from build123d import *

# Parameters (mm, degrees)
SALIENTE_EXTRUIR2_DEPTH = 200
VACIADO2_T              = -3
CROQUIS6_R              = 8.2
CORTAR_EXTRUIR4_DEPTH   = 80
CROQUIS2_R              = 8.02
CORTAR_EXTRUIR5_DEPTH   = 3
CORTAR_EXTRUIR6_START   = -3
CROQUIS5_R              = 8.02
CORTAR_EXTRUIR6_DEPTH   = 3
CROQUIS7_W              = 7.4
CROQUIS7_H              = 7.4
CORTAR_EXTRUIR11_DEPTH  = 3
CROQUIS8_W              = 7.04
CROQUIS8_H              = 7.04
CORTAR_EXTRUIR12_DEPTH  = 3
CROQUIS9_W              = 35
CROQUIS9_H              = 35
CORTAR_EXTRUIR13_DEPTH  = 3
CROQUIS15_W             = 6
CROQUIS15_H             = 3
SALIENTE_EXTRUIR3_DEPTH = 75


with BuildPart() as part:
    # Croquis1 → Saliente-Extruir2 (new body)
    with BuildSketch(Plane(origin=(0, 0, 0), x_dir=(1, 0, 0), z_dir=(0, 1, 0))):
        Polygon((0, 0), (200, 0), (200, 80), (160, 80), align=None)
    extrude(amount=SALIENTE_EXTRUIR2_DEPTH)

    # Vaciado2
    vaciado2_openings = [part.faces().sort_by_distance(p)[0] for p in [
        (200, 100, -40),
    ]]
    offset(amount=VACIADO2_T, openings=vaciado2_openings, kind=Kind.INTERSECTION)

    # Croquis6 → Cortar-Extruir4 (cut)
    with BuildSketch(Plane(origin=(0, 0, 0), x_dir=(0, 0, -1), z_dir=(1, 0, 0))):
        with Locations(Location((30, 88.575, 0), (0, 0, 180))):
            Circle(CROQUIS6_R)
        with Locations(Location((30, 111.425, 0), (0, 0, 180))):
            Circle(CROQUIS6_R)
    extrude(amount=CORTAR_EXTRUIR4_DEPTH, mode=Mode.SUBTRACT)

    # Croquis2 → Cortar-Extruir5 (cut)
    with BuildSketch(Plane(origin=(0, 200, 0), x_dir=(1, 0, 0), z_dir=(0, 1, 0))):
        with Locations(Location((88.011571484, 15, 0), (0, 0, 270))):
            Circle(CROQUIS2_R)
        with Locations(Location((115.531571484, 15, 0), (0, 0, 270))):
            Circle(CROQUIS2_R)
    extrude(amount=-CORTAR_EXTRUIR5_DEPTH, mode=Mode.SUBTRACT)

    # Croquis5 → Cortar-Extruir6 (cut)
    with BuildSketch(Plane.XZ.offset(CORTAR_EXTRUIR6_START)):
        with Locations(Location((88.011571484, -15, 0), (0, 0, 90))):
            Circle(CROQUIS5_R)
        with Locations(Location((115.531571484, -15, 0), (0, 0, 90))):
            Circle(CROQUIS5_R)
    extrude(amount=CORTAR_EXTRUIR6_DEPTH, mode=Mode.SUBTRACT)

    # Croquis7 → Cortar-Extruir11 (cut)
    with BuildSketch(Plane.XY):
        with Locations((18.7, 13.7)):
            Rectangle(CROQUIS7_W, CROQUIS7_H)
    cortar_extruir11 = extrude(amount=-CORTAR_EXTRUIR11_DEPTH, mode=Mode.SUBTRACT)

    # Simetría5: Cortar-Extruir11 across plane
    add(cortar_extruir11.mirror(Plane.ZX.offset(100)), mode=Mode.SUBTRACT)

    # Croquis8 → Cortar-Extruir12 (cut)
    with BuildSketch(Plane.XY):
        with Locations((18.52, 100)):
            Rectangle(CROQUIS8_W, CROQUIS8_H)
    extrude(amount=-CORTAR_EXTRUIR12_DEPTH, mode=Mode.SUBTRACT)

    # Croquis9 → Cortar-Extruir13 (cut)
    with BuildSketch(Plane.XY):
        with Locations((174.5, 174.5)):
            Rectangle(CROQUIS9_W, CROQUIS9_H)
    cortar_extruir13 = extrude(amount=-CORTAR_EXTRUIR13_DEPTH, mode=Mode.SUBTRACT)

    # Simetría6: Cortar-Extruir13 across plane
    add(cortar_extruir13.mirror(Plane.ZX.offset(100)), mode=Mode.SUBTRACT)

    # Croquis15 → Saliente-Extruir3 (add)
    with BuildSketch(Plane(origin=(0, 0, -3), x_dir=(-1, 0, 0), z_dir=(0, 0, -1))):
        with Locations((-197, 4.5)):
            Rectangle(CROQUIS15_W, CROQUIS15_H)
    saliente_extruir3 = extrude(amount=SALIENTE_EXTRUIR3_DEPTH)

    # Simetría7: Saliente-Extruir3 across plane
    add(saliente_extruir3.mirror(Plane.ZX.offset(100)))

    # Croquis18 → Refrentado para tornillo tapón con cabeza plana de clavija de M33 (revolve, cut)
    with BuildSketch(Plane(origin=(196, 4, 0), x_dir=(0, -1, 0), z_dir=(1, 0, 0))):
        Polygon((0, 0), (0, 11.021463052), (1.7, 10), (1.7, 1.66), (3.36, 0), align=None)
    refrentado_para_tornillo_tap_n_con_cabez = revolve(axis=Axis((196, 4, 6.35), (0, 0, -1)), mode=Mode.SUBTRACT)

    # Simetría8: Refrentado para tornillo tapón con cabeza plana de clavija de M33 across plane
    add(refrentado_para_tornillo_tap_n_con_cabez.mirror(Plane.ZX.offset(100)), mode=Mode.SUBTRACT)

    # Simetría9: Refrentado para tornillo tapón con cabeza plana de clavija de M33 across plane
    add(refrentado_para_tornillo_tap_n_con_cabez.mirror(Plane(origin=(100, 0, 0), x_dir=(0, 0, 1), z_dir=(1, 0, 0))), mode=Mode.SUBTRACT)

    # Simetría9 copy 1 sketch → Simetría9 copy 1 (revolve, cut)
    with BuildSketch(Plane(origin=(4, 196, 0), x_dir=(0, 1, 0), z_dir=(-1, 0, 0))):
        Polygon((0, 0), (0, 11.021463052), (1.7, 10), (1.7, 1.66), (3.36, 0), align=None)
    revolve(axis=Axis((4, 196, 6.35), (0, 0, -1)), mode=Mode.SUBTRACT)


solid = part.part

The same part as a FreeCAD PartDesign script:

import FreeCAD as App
import Part
import Sketcher

V = App.Vector
Q = App.Units.Quantity


def faces_at(feature, points):
    """Names of the faces that lie closest to the given points."""
    faces = feature.Shape.Faces
    near = lambda p: min(range(len(faces)), key=lambda i: faces[i].distToShape(Part.Vertex(*p))[0])
    return sorted({f"Face{near(p) + 1}" for p in points})


def add_polygon(sketch, points):
    """Adds a closed chain of lines whose ends are joined by coincident constraints."""
    first, n = sketch.GeometryCount, len(points)
    for a, b in zip(points, points[1:] + points[:1]):
        sketch.addGeometry(Part.LineSegment(App.Vector(*a, 0), App.Vector(*b, 0)), False)
    for i in range(n):
        sketch.addConstraint(Sketcher.Constraint("Coincident", first + i, 2, first + (i + 1) % n, 1))

doc = App.newDocument("Part")
body = doc.addObject("PartDesign::Body", "Body")

sketch1 = body.newObject("Sketcher::SketchObject", "Sketch")
sketch1.AttachmentSupport = (doc.getObject("XZ_Plane"), [""])
sketch1.MapMode = "FlatFace"
add_polygon(sketch1, [(0, 0), (200, 0), (200, -80), (160, -80)])
sketch1.addConstraint([
    Sketcher.Constraint("Horizontal", 0),
    Sketcher.Constraint("Vertical", 1),
    Sketcher.Constraint("Horizontal", 2),
    Sketcher.Constraint("Coincident", 3, 2, -1, 1),
    Sketcher.Constraint("DistanceX", 0, 1, 0, 2, 200.0),
    Sketcher.Constraint("DistanceX", 2, 2, 2, 1, 40.0),
    Sketcher.Constraint("DistanceY", 1, 2, 1, 1, 80.0),
])
pad1 = body.newObject("PartDesign::Pad", "Pad")
pad1.Profile = sketch1
pad1.Length = 200
pad1.Reversed = True
doc.recompute()

thickness = body.newObject("PartDesign::Thickness", "Thickness")
thickness.Base = (pad1, faces_at(pad1, [(200, 100, -40)]))
thickness.Value = 3
thickness.Reversed = True
thickness.Join = "Intersection"

sketch2 = body.newObject("Sketcher::SketchObject", "Sketch001")
sketch2.AttachmentSupport = (doc.getObject("YZ_Plane"), [""])
sketch2.MapMode = "FlatFace"
sketch2.addGeometry([
    Part.Circle(V(89, -30, 0), V(0, 0, 1), 8),
    Part.Circle(V(111, -30, 0), V(0, 0, 1), 8),
], False)
sketch2.addConstraint([
    Sketcher.Constraint("Equal", 0, 1),
    Sketcher.Constraint("Horizontal", 0, 3, 1, 3),
    Sketcher.Constraint("Diameter", 0, 16.4),
    Sketcher.Constraint("DistanceY", 0, 3, -1, 1, 30.0),
    Sketcher.Constraint("DistanceX", 0, 3, 1, 3, 22.85),
    Sketcher.Constraint("DistanceX", -1, 1, 0, 3, 88.575),
])
pocket1 = body.newObject("PartDesign::Pocket", "Pocket")
pocket1.Profile = sketch2
pocket1.Length = 80
pocket1.Reversed = True

sketch3 = body.newObject("Sketcher::SketchObject", "Sketch002")
sketch3.AttachmentSupport = (doc.getObject("XZ_Plane"), [""])
sketch3.MapMode = "FlatFace"
sketch3.AttachmentOffset = App.Placement(V(0, 0, -200), App.Rotation())
sketch3.addGeometry([
    Part.Circle(V(88, -15, 0), V(0, 0, 1), 8),
    Part.Circle(V(116, -15, 0), V(0, 0, 1), 8),
], False)
sketch3.addConstraint([
    Sketcher.Constraint("Equal", 0, 1),
    Sketcher.Constraint("Horizontal", 0, 3, 1, 3),
    Sketcher.Constraint("Diameter", 0, 16.04),
    Sketcher.Constraint("DistanceY", 0, 3, -1, 1, 15.0),
    Sketcher.Constraint("DistanceX", 0, 3, 1, 3, 27.52),
    Sketcher.Constraint("DistanceX", -1, 1, 0, 3, 88.011571),
])
pocket2 = body.newObject("PartDesign::Pocket", "Pocket001")
pocket2.Profile = sketch3
pocket2.Length = 3
pocket2.Reversed = True

sketch4 = body.newObject("Sketcher::SketchObject", "Sketch003")
sketch4.AttachmentSupport = (doc.getObject("XZ_Plane"), [""])
sketch4.MapMode = "FlatFace"
sketch4.AttachmentOffset = App.Placement(V(0, 0, -3), App.Rotation())
sketch4.addGeometry([
    Part.Circle(V(88, -15, 0), V(0, 0, 1), 8),
    Part.Circle(V(116, -15, 0), V(0, 0, 1), 8),
], False)
sketch4.addConstraint([
    Sketcher.Constraint("Equal", 0, 1),
    Sketcher.Constraint("Horizontal", 0, 3, 1, 3),
    Sketcher.Constraint("Diameter", 0, 16.04),
    Sketcher.Constraint("DistanceY", 0, 3, -1, 1, 15.0),
    Sketcher.Constraint("DistanceX", 0, 3, 1, 3, 27.52),
    Sketcher.Constraint("DistanceX", -1, 1, 0, 3, 88.011571),
])
pocket3 = body.newObject("PartDesign::Pocket", "Pocket002")
pocket3.Profile = sketch4
pocket3.Length = 3
pocket3.Reversed = True

sketch5 = body.newObject("Sketcher::SketchObject", "Sketch004")
sketch5.AttachmentSupport = (doc.getObject("XY_Plane"), [""])
sketch5.MapMode = "FlatFace"
add_polygon(sketch5, [(15, 17), (15, 10), (22, 10), (22, 17)])
sketch5.addConstraint([
    Sketcher.Constraint("Vertical", 0),
    Sketcher.Constraint("Horizontal", 1),
    Sketcher.Constraint("Vertical", 2),
    Sketcher.Constraint("Horizontal", 3),
    Sketcher.Constraint("Equal", 3, 0),
    Sketcher.Constraint("DistanceX", 1, 1, 1, 2, 7.4),
    Sketcher.Constraint("DistanceX", -1, 1, 0, 2, 15.0),
    Sketcher.Constraint("DistanceY", -1, 1, 0, 2, 10.0),
])
pocket4 = body.newObject("PartDesign::Pocket", "Pocket003")
pocket4.Profile = sketch5
pocket4.Length = 3
doc.recompute()

datumplane = body.newObject("PartDesign::Plane", "DatumPlane")
datumplane.AttachmentSupport = (doc.getObject("XZ_Plane"), [""])
datumplane.MapMode = "FlatFace"
datumplane.AttachmentOffset = App.Placement(V(0, 0, -100), App.Rotation())
mirrored = body.newObject("PartDesign::Mirrored", "Mirrored")
mirrored.Originals = [pocket4]
mirrored.MirrorPlane = (datumplane, [""])
body.Tip = mirrored

sketch6 = body.newObject("Sketcher::SketchObject", "Sketch005")
sketch6.AttachmentSupport = (doc.getObject("XY_Plane"), [""])
sketch6.MapMode = "FlatFace"
add_polygon(sketch6, [(15, 104), (15, 96), (22, 96), (22, 104)])
sketch6.addConstraint([
    Sketcher.Constraint("Vertical", 0),
    Sketcher.Constraint("Horizontal", 1),
    Sketcher.Constraint("Vertical", 2),
    Sketcher.Constraint("Horizontal", 3),
    Sketcher.Constraint("Equal", 3, 0),
    Sketcher.Constraint("DistanceX", -1, 1, 0, 2, 15.0),
    Sketcher.Constraint("DistanceX", 1, 1, 1, 2, 7.04),
    Sketcher.Constraint("DistanceY", -1, 1, 0, 2, 96.48),
])
pocket5 = body.newObject("PartDesign::Pocket", "Pocket004")
pocket5.Profile = sketch6
pocket5.Length = 3

sketch7 = body.newObject("Sketcher::SketchObject", "Sketch006")
sketch7.AttachmentSupport = (doc.getObject("XY_Plane"), [""])
sketch7.MapMode = "FlatFace"
add_polygon(sketch7, [(157, 192), (157, 157), (192, 157), (192, 192)])
sketch7.addConstraint([
    Sketcher.Constraint("Vertical", 0),
    Sketcher.Constraint("Horizontal", 1),
    Sketcher.Constraint("Vertical", 2),
    Sketcher.Constraint("Horizontal", 3),
    Sketcher.Constraint("Equal", 3, 0),
    Sketcher.Constraint("DistanceX", 1, 1, 1, 2, 35.0),
    Sketcher.Constraint("DistanceX", -1, 1, 0, 2, 157.0),
    Sketcher.Constraint("DistanceY", -1, 1, 0, 2, 157.0),
])
pocket6 = body.newObject("PartDesign::Pocket", "Pocket005")
pocket6.Profile = sketch7
pocket6.Length = 3
doc.recompute()

datumplane2 = body.newObject("PartDesign::Plane", "DatumPlane001")
datumplane2.AttachmentSupport = (doc.getObject("XZ_Plane"), [""])
datumplane2.MapMode = "FlatFace"
datumplane2.AttachmentOffset = App.Placement(V(0, 0, -100), App.Rotation())
mirrored2 = body.newObject("PartDesign::Mirrored", "Mirrored001")
mirrored2.Originals = [pocket6]
mirrored2.MirrorPlane = (datumplane2, [""])
body.Tip = mirrored2

sketch8 = body.newObject("Sketcher::SketchObject", "Sketch007")
sketch8.AttachmentSupport = (doc.getObject("XY_Plane"), [""])
sketch8.MapMode = "FlatFace"
sketch8.AttachmentOffset = App.Placement(V(0, 0, -3), App.Rotation())
add_polygon(sketch8, [(200, 6), (200, 3), (194, 3), (194, 6)])
sketch8.addConstraint([
    Sketcher.Constraint("Vertical", 0),
    Sketcher.Constraint("Horizontal", 1),
    Sketcher.Constraint("Vertical", 2),
    Sketcher.Constraint("Horizontal", 3),
    Sketcher.Constraint("DistanceX", 1, 2, 1, 1, 6.0),
    Sketcher.Constraint("DistanceY", 0, 2, 0, 1, 3.0),
    Sketcher.Constraint("DistanceX", -1, 1, 0, 2, 200.0),
    Sketcher.Constraint("DistanceY", -1, 1, 0, 2, 3.0),
])
pad2 = body.newObject("PartDesign::Pad", "Pad001")
pad2.Profile = sketch8
pad2.Length = 75
pad2.Reversed = True
doc.recompute()

datumplane3 = body.newObject("PartDesign::Plane", "DatumPlane002")
datumplane3.AttachmentSupport = (doc.getObject("XZ_Plane"), [""])
datumplane3.MapMode = "FlatFace"
datumplane3.AttachmentOffset = App.Placement(V(0, 0, -100), App.Rotation())
mirrored3 = body.newObject("PartDesign::Mirrored", "Mirrored002")
mirrored3.Originals = [pad2]
mirrored3.MirrorPlane = (datumplane3, [""])
body.Tip = mirrored3

sketch9 = body.newObject("Sketcher::SketchObject", "Sketch008")
sketch9.AttachmentSupport = (doc.getObject("YZ_Plane"), [""])
sketch9.MapMode = "FlatFace"
sketch9.AttachmentOffset = App.Placement(V(0, 0, 196), App.Rotation())
add_polygon(sketch9, [(4, -11), (4, 0), (0.6, 0), (2.3, -1.7), (2.3, -10)])
sketch9.addGeometry(Part.LineSegment(V(4, 0, 0), V(4, -11, 0)), True)
sketch9.addConstraint([
    Sketcher.Constraint("Vertical", 0),
    Sketcher.Constraint("Horizontal", 1),
    Sketcher.Constraint("Vertical", 3),
    Sketcher.Constraint("Vertical", 5),
    Sketcher.Constraint("Coincident", 5, 1, 0, 2),
    Sketcher.Constraint("PointOnObject", 0, 2, -1),
    Sketcher.Constraint("Equal", 0, 5),
    Sketcher.Constraint("Angle", 2, Q("-45 deg")),
    Sketcher.Constraint("Angle", 4, Q("-31 deg")),
    Sketcher.Constraint("DistanceX", -1, 1, 0, 2, 4.0),
    Sketcher.Constraint("DistanceY", 3, 2, -1, 1, 10.0),
    Sketcher.Constraint("DistanceX", 1, 2, 1, 1, 3.36),
    Sketcher.Constraint("DistanceY", 3, 2, 3, 1, 8.34),
])
groove = body.newObject("PartDesign::Groove", "Groove")
groove.Profile = sketch9
groove.ReferenceAxis = (sketch9, ["Axis0"])
groove.Angle = 360
doc.recompute()

datumplane4 = body.newObject("PartDesign::Plane", "DatumPlane003")
datumplane4.AttachmentSupport = (doc.getObject("XZ_Plane"), [""])
datumplane4.MapMode = "FlatFace"
datumplane4.AttachmentOffset = App.Placement(V(0, 0, -100), App.Rotation())
mirrored4 = body.newObject("PartDesign::Mirrored", "Mirrored003")
mirrored4.Originals = [groove]
mirrored4.MirrorPlane = (datumplane4, [""])
body.Tip = mirrored4
doc.recompute()

datumplane5 = body.newObject("PartDesign::Plane", "DatumPlane004")
datumplane5.AttachmentSupport = (doc.getObject("YZ_Plane"), [""])
datumplane5.MapMode = "FlatFace"
datumplane5.AttachmentOffset = App.Placement(V(0, 0, 100), App.Rotation())
mirrored5 = body.newObject("PartDesign::Mirrored", "Mirrored004")
mirrored5.Originals = [groove]
mirrored5.MirrorPlane = (datumplane5, [""])
body.Tip = mirrored5

sketch10 = body.newObject("Sketcher::SketchObject", "Sketch009")
sketch10.AttachmentSupport = (doc.getObject("YZ_Plane"), [""])
sketch10.MapMode = "FlatFace"
sketch10.AttachmentOffset = App.Placement(V(0, 0, 4), App.Rotation())
add_polygon(sketch10, [(196, -11), (196, 0), (199.4, 0), (197.7, -1.7), (197.7, -10)])
sketch10.addGeometry(Part.LineSegment(V(196, 0, 0), V(196, -11, 0)), True)
sketch10.addConstraint([
    Sketcher.Constraint("Vertical", 0),
    Sketcher.Constraint("Horizontal", 1),
    Sketcher.Constraint("Vertical", 3),
    Sketcher.Constraint("Vertical", 5),
    Sketcher.Constraint("Coincident", 5, 1, 0, 2),
    Sketcher.Constraint("PointOnObject", 0, 2, -1),
    Sketcher.Constraint("Equal", 0, 5),
    Sketcher.Constraint("Angle", 2, Q("-135 deg")),
    Sketcher.Constraint("Angle", 4, Q("-149 deg")),
    Sketcher.Constraint("DistanceX", -1, 1, 0, 2, 196.0),
    Sketcher.Constraint("DistanceY", 3, 2, -1, 1, 10.0),
    Sketcher.Constraint("DistanceX", 1, 1, 1, 2, 3.36),
    Sketcher.Constraint("DistanceY", 3, 2, 3, 1, 8.34),
])
groove2 = body.newObject("PartDesign::Groove", "Groove001")
groove2.Profile = sketch10
groove2.ReferenceAxis = (sketch10, ["Axis0"])
groove2.Angle = 360

doc.recompute()
